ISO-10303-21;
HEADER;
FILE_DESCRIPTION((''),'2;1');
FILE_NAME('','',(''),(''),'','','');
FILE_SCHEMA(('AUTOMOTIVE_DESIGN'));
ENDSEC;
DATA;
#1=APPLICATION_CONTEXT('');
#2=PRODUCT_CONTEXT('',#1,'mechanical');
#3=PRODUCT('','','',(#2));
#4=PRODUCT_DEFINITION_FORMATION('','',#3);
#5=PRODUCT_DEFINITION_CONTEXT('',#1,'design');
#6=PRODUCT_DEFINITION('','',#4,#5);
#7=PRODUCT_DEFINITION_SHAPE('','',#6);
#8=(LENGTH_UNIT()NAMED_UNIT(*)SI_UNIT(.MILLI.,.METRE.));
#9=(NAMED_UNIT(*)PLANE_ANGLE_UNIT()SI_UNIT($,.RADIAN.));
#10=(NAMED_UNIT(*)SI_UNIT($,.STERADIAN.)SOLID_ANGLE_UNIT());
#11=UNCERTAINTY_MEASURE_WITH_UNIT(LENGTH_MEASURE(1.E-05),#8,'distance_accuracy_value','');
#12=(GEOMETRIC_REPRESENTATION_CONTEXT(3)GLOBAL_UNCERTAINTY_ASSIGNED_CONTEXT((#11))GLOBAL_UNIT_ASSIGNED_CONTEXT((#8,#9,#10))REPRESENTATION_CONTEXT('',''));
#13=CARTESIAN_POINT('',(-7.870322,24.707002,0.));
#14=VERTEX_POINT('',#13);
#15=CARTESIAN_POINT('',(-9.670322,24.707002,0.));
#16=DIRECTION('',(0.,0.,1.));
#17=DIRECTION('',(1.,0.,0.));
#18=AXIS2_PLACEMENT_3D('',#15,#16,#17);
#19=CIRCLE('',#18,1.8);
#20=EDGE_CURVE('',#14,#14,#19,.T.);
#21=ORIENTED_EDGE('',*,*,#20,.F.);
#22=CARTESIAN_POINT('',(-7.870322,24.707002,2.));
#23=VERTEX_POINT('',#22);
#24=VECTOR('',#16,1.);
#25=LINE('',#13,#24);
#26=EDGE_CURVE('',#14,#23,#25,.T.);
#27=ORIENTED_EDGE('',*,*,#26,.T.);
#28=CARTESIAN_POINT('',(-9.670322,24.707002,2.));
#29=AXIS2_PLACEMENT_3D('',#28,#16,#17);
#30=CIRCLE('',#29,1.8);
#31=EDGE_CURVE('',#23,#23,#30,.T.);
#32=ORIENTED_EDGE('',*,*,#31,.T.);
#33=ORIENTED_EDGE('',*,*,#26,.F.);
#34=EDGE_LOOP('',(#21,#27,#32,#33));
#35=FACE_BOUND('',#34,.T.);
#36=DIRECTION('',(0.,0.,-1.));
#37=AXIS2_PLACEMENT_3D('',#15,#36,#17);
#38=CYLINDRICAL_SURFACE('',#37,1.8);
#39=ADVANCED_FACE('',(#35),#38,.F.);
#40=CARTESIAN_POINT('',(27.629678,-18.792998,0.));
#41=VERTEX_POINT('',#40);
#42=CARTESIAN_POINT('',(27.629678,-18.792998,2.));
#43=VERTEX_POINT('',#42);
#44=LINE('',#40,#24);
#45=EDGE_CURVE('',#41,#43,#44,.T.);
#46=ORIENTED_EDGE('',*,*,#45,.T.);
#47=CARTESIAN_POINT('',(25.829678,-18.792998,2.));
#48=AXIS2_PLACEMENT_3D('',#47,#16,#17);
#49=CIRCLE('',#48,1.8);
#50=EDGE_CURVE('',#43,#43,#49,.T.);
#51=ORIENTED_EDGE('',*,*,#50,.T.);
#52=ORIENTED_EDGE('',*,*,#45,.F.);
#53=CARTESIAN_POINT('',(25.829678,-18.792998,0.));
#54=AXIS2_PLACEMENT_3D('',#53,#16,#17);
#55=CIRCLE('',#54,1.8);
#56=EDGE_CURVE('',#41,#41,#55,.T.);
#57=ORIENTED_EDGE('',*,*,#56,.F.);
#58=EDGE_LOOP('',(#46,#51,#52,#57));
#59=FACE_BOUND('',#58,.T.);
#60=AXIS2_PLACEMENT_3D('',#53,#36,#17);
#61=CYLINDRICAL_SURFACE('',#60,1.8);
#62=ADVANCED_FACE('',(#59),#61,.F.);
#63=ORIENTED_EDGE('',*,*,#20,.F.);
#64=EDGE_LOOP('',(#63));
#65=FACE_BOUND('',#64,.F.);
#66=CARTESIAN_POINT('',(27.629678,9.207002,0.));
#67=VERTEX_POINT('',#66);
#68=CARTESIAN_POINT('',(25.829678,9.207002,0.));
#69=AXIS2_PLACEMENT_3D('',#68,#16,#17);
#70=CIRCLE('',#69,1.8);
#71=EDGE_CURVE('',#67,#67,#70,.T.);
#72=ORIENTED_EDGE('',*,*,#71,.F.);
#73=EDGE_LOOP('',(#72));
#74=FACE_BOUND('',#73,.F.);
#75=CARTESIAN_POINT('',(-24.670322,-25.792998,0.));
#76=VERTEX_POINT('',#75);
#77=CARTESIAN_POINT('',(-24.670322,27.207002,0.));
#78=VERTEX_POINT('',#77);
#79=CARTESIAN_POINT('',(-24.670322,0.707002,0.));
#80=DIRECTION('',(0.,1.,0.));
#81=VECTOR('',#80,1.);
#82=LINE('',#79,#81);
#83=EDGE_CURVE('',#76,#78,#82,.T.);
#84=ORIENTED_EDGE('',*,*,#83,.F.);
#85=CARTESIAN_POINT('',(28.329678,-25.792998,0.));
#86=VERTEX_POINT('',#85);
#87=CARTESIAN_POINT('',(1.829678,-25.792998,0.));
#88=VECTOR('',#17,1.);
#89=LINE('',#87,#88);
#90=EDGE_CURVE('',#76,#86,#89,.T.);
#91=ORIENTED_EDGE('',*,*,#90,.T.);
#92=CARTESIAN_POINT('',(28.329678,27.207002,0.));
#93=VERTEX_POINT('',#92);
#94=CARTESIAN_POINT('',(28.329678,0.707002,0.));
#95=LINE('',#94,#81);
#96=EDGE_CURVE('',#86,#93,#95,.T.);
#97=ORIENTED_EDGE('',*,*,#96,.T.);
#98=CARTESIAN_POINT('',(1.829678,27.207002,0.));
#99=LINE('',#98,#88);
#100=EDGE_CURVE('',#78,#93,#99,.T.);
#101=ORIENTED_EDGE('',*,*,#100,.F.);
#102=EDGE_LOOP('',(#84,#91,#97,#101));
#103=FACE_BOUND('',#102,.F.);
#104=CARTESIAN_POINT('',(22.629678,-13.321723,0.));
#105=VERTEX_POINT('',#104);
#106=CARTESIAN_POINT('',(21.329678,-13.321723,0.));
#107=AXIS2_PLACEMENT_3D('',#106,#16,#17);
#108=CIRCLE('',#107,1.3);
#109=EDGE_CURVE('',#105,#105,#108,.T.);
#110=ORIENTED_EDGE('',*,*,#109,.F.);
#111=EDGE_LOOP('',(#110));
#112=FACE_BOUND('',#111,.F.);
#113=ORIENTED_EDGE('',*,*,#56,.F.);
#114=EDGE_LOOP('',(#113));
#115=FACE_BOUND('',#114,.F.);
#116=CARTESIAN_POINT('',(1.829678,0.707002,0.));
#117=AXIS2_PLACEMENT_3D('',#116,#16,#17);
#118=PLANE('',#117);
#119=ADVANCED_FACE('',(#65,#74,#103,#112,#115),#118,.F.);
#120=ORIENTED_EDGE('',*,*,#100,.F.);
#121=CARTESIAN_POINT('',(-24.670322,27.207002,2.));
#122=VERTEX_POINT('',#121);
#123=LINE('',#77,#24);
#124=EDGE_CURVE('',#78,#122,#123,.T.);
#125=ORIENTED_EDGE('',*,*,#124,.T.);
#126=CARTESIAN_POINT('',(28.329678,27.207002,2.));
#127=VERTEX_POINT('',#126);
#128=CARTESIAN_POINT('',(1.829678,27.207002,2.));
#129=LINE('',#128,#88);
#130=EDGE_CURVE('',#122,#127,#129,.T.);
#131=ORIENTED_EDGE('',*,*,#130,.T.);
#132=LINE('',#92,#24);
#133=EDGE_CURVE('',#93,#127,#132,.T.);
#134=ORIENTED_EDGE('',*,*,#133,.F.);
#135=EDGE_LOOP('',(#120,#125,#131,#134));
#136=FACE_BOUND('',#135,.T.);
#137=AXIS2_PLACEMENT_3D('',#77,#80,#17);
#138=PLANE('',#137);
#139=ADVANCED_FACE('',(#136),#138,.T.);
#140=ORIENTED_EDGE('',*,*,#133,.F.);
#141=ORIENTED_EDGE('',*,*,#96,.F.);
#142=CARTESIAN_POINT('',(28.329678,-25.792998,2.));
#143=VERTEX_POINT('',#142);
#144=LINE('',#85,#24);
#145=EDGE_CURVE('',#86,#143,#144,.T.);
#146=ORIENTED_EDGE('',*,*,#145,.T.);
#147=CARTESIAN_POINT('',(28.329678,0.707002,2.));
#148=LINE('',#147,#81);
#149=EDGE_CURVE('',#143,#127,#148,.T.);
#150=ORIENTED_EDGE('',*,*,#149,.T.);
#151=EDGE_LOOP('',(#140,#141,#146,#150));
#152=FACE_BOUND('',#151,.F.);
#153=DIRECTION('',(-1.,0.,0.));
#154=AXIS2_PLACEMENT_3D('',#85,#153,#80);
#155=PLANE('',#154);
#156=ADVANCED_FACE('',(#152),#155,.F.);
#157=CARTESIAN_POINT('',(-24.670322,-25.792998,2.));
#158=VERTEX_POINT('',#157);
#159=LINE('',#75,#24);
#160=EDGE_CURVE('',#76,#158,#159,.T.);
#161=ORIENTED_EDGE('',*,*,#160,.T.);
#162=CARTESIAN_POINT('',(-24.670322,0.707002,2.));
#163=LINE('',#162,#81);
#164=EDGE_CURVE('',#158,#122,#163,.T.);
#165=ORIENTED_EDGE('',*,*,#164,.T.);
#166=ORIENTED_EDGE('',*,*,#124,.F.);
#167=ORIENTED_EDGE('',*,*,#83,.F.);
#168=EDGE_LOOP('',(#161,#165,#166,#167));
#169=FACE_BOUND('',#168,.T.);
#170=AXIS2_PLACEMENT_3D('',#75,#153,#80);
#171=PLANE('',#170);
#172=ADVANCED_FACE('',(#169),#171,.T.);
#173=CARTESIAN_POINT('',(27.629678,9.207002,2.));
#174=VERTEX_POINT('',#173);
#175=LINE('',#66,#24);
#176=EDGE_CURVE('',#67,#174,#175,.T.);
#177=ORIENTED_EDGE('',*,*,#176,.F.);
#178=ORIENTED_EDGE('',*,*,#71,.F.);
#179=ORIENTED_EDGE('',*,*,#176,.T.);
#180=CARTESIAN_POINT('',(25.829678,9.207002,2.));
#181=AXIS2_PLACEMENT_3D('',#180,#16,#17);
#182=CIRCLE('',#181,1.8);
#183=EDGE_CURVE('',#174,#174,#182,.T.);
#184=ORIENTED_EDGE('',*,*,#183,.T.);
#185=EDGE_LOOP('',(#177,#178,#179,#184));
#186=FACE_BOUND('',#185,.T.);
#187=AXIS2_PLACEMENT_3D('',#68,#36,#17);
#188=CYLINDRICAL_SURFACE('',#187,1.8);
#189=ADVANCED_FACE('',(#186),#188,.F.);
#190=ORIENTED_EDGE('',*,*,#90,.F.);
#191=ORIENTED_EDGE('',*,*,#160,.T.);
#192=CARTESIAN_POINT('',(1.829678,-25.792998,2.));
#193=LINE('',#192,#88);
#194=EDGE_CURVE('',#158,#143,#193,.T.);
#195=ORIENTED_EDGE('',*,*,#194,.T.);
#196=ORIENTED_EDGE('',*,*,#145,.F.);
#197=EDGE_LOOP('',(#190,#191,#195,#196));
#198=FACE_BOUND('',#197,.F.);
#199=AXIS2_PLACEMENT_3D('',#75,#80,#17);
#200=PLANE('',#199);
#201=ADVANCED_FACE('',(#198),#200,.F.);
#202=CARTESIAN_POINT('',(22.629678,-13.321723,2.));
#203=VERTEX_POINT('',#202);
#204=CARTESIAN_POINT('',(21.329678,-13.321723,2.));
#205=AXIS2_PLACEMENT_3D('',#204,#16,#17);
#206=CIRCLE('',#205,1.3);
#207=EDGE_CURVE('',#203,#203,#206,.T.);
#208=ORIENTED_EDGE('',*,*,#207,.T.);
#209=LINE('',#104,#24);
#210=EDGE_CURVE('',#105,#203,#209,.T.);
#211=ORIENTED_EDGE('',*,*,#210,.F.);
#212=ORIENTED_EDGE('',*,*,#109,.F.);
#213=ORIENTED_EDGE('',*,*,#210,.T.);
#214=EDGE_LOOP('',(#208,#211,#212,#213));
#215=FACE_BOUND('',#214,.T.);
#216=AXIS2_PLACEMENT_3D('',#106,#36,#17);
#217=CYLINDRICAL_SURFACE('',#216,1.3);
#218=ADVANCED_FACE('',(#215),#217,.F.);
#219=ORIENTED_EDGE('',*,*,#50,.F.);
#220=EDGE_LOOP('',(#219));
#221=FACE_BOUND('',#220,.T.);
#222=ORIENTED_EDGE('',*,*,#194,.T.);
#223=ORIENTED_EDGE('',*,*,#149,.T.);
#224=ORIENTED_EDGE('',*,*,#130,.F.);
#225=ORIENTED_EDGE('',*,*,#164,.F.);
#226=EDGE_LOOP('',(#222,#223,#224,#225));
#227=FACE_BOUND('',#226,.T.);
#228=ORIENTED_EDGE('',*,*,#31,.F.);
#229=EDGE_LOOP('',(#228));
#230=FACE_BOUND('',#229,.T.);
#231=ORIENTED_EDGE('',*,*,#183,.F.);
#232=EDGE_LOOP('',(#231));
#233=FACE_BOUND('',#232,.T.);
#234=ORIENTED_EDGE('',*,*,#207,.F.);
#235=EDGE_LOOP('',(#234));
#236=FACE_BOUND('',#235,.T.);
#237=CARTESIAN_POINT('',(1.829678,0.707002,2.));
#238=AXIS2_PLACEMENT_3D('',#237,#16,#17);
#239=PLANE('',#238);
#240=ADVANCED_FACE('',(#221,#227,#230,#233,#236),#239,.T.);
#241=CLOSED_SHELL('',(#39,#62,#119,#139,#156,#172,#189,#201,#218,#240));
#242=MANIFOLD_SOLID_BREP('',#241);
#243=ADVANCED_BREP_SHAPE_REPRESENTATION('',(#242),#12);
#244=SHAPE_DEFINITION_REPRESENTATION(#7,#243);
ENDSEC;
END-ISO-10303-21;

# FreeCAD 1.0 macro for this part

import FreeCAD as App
import Part
import Sketcher
Q = App.Units.Quantity


def add_polygon(sketch, points):
    """Adds a closed chain of lines whose ends are joined by coincident constraints."""
    first, n = sketch.GeometryCount, len(points)
    for a, b in zip(points, points[1:] + points[:1]):
        sketch.addGeometry(Part.LineSegment(App.Vector(*a, 0), App.Vector(*b, 0)), False)
    for i in range(n):
        sketch.addConstraint(Sketcher.Constraint("Coincident", first + i, 2, first + (i + 1) % n, 1))

doc = App.newDocument("Part")
body = doc.addObject("PartDesign::Body", "Body")

# Sketch on XY plane
sketch1 = body.newObject("Sketcher::SketchObject", "Sketch")
sketch1.AttachmentSupport = (doc.getObject("XY_Plane"), [""])
sketch1.MapMode = "FlatFace"
add_polygon(sketch1, [(-24.7, 27.2), (-24.7, -25.8), (28.3, -25.8), (28.3, 27.2)])  # lines 0-3
sketch1.addGeometry(Part.Circle(App.Vector(25.8, -18.8, 0), App.Vector(0, 0, 1), 1.8), False)  # 4
sketch1.addGeometry(Part.Circle(App.Vector(21.3, -13.3, 0), App.Vector(0, 0, 1), 1.3), False)  # 5
sketch1.addGeometry(Part.Circle(App.Vector(-9.7, 24.7, 0), App.Vector(0, 0, 1), 1.8), False)  # 6
sketch1.addGeometry(Part.Circle(App.Vector(25.8, 9.2, 0), App.Vector(0, 0, 1), 1.8), False)  # 7
sketch1.addConstraint([
    Sketcher.Constraint("Vertical", 0),
    Sketcher.Constraint("Horizontal", 1),
    Sketcher.Constraint("Vertical", 2),
    Sketcher.Constraint("Horizontal", 3),
    Sketcher.Constraint("Equal", 4, 6),
    Sketcher.Constraint("Equal", 6, 7),
    Sketcher.Constraint("Vertical", 4, 3, 7, 3),
    Sketcher.Constraint("Equal", 3, 0),
    Sketcher.Constraint("Diameter", 4, Q("3.6 mm")),
    Sketcher.Constraint("Diameter", 5, Q("2.6 mm")),
    Sketcher.Constraint("DistanceX", 1, 1, 1, 2, Q("53 mm")),
    Sketcher.Constraint("DistanceX", 6, 3, 5, 3, Q("31 mm")),
    Sketcher.Constraint("DistanceY", 4, 3, 7, 3, Q("28 mm")),
    Sketcher.Constraint("DistanceX", 0, 2, 5, 3, Q("46 mm")),
    Sketcher.Constraint("DistanceY", 0, 2, 4, 3, Q("7 mm")),
    Sketcher.Constraint("DistanceX", 5, 3, 4, 3, Q("4.5 mm")),
    Sketcher.Constraint("DistanceY", 4, 3, 6, 3, Q("43.5 mm")),
    Sketcher.Constraint("DistanceY", 4, 3, -1, 1, Q("18.792998 mm")),
    Sketcher.Constraint("DistanceX", -1, 1, 4, 3, Q("25.829678 mm")),
    Sketcher.Constraint("DistanceY", 5, 3, -1, 1, Q("13.321723 mm")),
])
pad1 = body.newObject("PartDesign::Pad", "Pad")
pad1.Profile = sketch1
pad1.Length = 2

doc.recompute()
